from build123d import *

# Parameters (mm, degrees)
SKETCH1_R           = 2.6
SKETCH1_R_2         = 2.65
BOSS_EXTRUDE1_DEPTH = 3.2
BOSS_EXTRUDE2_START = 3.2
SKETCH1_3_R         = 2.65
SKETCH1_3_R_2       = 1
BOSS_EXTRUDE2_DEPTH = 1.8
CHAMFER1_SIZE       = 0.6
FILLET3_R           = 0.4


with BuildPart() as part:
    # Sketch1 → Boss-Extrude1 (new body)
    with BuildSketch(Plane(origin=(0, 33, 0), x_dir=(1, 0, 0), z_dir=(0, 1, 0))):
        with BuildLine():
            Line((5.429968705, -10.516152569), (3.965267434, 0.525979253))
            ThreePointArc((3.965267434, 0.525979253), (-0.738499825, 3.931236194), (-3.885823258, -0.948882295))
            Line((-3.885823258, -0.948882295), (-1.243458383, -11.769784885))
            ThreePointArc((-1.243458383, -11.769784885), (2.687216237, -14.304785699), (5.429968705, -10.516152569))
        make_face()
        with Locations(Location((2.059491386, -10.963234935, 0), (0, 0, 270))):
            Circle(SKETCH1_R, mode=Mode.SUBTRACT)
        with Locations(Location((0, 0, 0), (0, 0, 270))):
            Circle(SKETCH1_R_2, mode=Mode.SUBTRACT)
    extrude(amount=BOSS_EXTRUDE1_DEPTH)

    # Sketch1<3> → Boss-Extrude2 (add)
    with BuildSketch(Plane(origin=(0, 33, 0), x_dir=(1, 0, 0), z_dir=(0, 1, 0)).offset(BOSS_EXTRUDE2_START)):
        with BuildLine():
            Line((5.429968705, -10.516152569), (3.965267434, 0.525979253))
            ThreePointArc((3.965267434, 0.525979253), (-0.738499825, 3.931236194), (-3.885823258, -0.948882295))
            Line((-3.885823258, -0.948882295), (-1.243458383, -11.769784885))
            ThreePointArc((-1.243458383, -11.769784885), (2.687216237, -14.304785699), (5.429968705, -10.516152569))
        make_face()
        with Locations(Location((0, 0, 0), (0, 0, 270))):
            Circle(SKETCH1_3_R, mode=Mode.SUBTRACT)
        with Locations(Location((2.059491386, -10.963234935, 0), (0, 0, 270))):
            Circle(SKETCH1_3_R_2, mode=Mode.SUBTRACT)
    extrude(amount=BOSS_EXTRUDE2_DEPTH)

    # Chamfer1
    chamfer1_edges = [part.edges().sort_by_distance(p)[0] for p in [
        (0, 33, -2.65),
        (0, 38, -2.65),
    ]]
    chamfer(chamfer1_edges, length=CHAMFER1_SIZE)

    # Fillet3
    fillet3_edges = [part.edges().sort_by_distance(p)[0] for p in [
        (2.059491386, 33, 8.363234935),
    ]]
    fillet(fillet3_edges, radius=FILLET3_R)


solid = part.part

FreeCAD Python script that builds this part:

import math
import FreeCAD as App
import Part
import Sketcher
from FreeCAD import Vector
Q = App.Units.Quantity


def edges_at(feature, points):
    """Names of the edges that pass closest to the given points."""
    edges = feature.Shape.Edges
    near = lambda p: min(range(len(edges)), key=lambda i: edges[i].distToShape(Part.Vertex(*p))[0])
    return sorted({f"Edge{near(p) + 1}" for p in points})

doc = App.newDocument("Part")
body = doc.addObject("PartDesign::Body", "Body")

# Sketch on XZ plane
sketch1 = doc.addObject("Sketcher::SketchObject", "Sketch")
body.addObject(sketch1)
sketch1.AttachmentSupport = (doc.XZ_Plane, [""])
sketch1.MapMode = "FlatFace"
sketch1.AttachmentOffset = App.Placement(Vector(0, 0, -33), App.Rotation())
sketch1.addGeometry(Part.LineSegment(Vector(5.4, 10.5, 0), Vector(4, -0.5, 0)), False)
sketch1.addGeometry(Part.ArcOfCircle(Part.Circle(Vector(0, 0, 0), Vector(0, 0, 1), 4), math.radians(166), math.radians(352)), False)
sketch1.addGeometry(Part.LineSegment(Vector(-3.9, 0.9, 0), Vector(-1.2, 11.8, 0)), False)
sketch1.addGeometry(Part.ArcOfCircle(Part.Circle(Vector(2.1, 11, 0), Vector(0, 0, 1), 3.4), math.radians(-8), math.radians(166)), False)
sketch1.addGeometry(Part.Circle(Vector(2.1, 11, 0), Vector(0, 0, 1), 2.6), False)
sketch1.addGeometry(Part.Circle(Vector(0, 0, 0), Vector(0, 0, 1), 2.6), False)
sketch1.addConstraint(Sketcher.Constraint("Tangent", 0, 2, 1, 2))
sketch1.addConstraint(Sketcher.Constraint("Tangent", 1, 1, 2, 1))
sketch1.addConstraint(Sketcher.Constraint("Tangent", 2, 2, 3, 2))
sketch1.addConstraint(Sketcher.Constraint("Tangent", 3, 1, 0, 1))
sketch1.addConstraint(Sketcher.Constraint("Coincident", 1, 3, -1, 1))
sketch1.addConstraint(Sketcher.Constraint("Coincident", 5, 3, -1, 1))
sketch1.addConstraint(Sketcher.Constraint("Coincident", 4, 3, 3, 3))
sketch1.addConstraint(Sketcher.Constraint("Radius", 1, Q("4 mm")))
sketch1.addConstraint(Sketcher.Constraint("Diameter", 4, Q("5.2 mm")))
sketch1.addConstraint(Sketcher.Constraint("Diameter", 5, Q("5.3 mm")))
sketch1.addConstraint(Sketcher.Constraint("Radius", 3, Q("3.4 mm")))
sketch1.addConstraint(Sketcher.Constraint("DistanceX", 0, 2, 3, 1, Q("1.464701 mm")))
sketch1.addConstraint(Sketcher.Constraint("DistanceY", 0, 2, -1, 1, Q("0.525979 mm")))
pad1 = doc.addObject("PartDesign::Pad", "Pad")
body.addObject(pad1)
pad1.Profile = sketch1
pad1.Length = 3.2
pad1.Reversed = True

# Sketch on XZ plane
sketch2 = doc.addObject("Sketcher::SketchObject", "Sketch001")
body.addObject(sketch2)
sketch2.AttachmentSupport = (doc.XZ_Plane, [""])
sketch2.MapMode = "FlatFace"
sketch2.AttachmentOffset = App.Placement(Vector(0, 0, -36.2), App.Rotation())
sketch2.addGeometry(Part.LineSegment(Vector(5.4, 10.5, 0), Vector(4, -0.5, 0)), False)
sketch2.addGeometry(Part.ArcOfCircle(Part.Circle(Vector(0, 0, 0), Vector(0, 0, 1), 4), math.radians(166), math.radians(352)), False)
sketch2.addGeometry(Part.LineSegment(Vector(-3.9, 0.9, 0), Vector(-1.2, 11.8, 0)), False)
sketch2.addGeometry(Part.ArcOfCircle(Part.Circle(Vector(2.1, 11, 0), Vector(0, 0, 1), 3.4), math.radians(-8), math.radians(166)), False)
sketch2.addGeometry(Part.Circle(Vector(2.1, 11, 0), Vector(0, 0, 1), 1), False)
sketch2.addGeometry(Part.Circle(Vector(0, 0, 0), Vector(0, 0, 1), 2.6), False)
sketch2.addConstraint(Sketcher.Constraint("Tangent", 0, 2, 1, 2))
sketch2.addConstraint(Sketcher.Constraint("Tangent", 1, 1, 2, 1))
sketch2.addConstraint(Sketcher.Constraint("Tangent", 2, 2, 3, 2))
sketch2.addConstraint(Sketcher.Constraint("Tangent", 3, 1, 0, 1))
sketch2.addConstraint(Sketcher.Constraint("Coincident", 1, 3, -1, 1))
sketch2.addConstraint(Sketcher.Constraint("Coincident", 5, 3, -1, 1))
sketch2.addConstraint(Sketcher.Constraint("Coincident", 4, 3, 3, 3))
sketch2.addConstraint(Sketcher.Constraint("Diameter", 4, Q("2 mm")))
sketch2.addConstraint(Sketcher.Constraint("Radius", 1, Q("4 mm")))
sketch2.addConstraint(Sketcher.Constraint("Diameter", 5, Q("5.3 mm")))
sketch2.addConstraint(Sketcher.Constraint("Radius", 3, Q("3.4 mm")))
sketch2.addConstraint(Sketcher.Constraint("DistanceX", 0, 2, 3, 1, Q("1.464701 mm")))
sketch2.addConstraint(Sketcher.Constraint("DistanceY", 0, 2, -1, 1, Q("0.525979 mm")))
pad2 = doc.addObject("PartDesign::Pad", "Pad001")
body.addObject(pad2)
pad2.Profile = sketch2
pad2.Length = 1.8
pad2.Reversed = True
doc.recompute()

chamfer = doc.addObject("PartDesign::Chamfer", "Chamfer")
body.addObject(chamfer)
chamfer.Base = (pad2, edges_at(pad2, [(0, 33, -2.65), (0, 38, -2.65)]))
chamfer.Size = 0.6
doc.recompute()

fillet = doc.addObject("PartDesign::Fillet", "Fillet")
body.addObject(fillet)
fillet.Base = (chamfer, edges_at(chamfer, [(2.059, 33, 8.363)]))
fillet.Radius = 0.4

doc.recompute()
